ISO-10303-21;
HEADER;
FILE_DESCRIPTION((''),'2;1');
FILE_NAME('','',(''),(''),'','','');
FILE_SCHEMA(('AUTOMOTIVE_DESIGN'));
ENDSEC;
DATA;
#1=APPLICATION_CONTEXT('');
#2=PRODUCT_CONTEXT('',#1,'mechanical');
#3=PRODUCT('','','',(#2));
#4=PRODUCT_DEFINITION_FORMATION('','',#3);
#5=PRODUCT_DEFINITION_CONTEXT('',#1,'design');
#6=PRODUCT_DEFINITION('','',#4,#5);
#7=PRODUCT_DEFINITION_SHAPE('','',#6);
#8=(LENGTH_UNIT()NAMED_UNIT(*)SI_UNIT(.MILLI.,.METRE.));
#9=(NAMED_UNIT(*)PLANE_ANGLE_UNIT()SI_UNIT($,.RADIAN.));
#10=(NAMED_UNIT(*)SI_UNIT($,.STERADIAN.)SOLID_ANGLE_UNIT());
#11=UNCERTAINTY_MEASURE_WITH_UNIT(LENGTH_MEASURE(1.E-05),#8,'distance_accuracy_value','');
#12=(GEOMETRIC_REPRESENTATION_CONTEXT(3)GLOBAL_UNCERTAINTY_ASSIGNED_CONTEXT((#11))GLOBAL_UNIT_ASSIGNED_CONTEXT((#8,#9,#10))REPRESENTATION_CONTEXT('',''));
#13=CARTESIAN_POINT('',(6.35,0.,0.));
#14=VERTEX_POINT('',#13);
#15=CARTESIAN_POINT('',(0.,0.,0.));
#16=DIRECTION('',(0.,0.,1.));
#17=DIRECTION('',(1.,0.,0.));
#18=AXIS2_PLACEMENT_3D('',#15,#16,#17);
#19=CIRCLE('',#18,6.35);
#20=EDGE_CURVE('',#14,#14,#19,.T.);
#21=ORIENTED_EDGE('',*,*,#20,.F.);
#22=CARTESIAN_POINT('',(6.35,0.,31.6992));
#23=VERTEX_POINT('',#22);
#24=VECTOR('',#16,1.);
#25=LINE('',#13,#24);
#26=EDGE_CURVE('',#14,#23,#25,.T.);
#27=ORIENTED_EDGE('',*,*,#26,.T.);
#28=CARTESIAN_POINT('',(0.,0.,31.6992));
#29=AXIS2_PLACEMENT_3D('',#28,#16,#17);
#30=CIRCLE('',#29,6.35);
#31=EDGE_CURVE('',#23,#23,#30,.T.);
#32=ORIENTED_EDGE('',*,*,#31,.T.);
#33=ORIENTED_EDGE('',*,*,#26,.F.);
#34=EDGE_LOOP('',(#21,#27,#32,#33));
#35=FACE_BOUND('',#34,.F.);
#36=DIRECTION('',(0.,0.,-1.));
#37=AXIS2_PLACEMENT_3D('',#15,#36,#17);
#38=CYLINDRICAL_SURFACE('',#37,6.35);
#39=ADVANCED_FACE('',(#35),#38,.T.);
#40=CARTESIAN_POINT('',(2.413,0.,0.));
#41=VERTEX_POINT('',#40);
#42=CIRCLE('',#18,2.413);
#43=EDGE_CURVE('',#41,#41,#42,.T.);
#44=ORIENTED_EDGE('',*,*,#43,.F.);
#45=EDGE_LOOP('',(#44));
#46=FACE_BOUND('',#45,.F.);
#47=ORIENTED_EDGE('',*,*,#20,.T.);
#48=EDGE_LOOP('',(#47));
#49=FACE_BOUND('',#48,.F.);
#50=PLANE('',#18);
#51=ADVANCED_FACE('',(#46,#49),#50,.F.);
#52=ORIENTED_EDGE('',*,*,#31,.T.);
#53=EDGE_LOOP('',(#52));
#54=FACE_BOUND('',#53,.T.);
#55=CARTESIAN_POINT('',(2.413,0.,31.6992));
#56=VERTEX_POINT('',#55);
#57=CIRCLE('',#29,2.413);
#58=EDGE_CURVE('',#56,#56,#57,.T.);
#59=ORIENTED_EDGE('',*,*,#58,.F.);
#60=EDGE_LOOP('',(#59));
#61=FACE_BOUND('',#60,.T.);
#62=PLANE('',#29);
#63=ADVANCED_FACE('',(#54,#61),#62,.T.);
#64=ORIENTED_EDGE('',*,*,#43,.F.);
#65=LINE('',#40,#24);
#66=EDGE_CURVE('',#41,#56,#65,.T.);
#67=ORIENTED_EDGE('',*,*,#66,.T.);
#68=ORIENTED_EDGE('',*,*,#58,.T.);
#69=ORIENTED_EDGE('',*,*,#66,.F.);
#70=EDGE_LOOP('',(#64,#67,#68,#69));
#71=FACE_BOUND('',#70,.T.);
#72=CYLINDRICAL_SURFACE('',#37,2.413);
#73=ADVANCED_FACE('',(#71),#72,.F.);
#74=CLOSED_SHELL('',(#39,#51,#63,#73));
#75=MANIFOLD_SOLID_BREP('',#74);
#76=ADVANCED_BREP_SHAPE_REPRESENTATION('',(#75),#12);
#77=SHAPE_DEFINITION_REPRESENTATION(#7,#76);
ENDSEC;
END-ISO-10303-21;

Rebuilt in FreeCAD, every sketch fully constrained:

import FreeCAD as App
import Part
import Sketcher
Q = App.Units.Quantity

doc = App.newDocument("Part")
body = doc.addObject("PartDesign::Body", "Body")

# Sketch on XY plane
sketch1 = body.newObject("Sketcher::SketchObject", "Sketch")
sketch1.AttachmentSupport = (doc.getObject("XY_Plane"), [""])
sketch1.MapMode = "FlatFace"
sketch1.addGeometry(Part.Circle(App.Vector(0, 0, 0), App.Vector(0, 0, 1), 6.3), False)
sketch1.addGeometry(Part.Circle(App.Vector(0, 0, 0), App.Vector(0, 0, 1), 2.4), False)
sketch1.addConstraint(Sketcher.Constraint("Coincident", 0, 3, -1, 1))
sketch1.addConstraint(Sketcher.Constraint("Coincident", 1, 3, -1, 1))
sketch1.addConstraint(Sketcher.Constraint("Diameter", 0, Q("0.5 in")))
sketch1.addConstraint(Sketcher.Constraint("Diameter", 1, Q("0.19 in")))
pad1 = body.newObject("PartDesign::Pad", "Pad")
pad1.Profile = sketch1
pad1.Length = Q("1.248 in")

doc.recompute()
